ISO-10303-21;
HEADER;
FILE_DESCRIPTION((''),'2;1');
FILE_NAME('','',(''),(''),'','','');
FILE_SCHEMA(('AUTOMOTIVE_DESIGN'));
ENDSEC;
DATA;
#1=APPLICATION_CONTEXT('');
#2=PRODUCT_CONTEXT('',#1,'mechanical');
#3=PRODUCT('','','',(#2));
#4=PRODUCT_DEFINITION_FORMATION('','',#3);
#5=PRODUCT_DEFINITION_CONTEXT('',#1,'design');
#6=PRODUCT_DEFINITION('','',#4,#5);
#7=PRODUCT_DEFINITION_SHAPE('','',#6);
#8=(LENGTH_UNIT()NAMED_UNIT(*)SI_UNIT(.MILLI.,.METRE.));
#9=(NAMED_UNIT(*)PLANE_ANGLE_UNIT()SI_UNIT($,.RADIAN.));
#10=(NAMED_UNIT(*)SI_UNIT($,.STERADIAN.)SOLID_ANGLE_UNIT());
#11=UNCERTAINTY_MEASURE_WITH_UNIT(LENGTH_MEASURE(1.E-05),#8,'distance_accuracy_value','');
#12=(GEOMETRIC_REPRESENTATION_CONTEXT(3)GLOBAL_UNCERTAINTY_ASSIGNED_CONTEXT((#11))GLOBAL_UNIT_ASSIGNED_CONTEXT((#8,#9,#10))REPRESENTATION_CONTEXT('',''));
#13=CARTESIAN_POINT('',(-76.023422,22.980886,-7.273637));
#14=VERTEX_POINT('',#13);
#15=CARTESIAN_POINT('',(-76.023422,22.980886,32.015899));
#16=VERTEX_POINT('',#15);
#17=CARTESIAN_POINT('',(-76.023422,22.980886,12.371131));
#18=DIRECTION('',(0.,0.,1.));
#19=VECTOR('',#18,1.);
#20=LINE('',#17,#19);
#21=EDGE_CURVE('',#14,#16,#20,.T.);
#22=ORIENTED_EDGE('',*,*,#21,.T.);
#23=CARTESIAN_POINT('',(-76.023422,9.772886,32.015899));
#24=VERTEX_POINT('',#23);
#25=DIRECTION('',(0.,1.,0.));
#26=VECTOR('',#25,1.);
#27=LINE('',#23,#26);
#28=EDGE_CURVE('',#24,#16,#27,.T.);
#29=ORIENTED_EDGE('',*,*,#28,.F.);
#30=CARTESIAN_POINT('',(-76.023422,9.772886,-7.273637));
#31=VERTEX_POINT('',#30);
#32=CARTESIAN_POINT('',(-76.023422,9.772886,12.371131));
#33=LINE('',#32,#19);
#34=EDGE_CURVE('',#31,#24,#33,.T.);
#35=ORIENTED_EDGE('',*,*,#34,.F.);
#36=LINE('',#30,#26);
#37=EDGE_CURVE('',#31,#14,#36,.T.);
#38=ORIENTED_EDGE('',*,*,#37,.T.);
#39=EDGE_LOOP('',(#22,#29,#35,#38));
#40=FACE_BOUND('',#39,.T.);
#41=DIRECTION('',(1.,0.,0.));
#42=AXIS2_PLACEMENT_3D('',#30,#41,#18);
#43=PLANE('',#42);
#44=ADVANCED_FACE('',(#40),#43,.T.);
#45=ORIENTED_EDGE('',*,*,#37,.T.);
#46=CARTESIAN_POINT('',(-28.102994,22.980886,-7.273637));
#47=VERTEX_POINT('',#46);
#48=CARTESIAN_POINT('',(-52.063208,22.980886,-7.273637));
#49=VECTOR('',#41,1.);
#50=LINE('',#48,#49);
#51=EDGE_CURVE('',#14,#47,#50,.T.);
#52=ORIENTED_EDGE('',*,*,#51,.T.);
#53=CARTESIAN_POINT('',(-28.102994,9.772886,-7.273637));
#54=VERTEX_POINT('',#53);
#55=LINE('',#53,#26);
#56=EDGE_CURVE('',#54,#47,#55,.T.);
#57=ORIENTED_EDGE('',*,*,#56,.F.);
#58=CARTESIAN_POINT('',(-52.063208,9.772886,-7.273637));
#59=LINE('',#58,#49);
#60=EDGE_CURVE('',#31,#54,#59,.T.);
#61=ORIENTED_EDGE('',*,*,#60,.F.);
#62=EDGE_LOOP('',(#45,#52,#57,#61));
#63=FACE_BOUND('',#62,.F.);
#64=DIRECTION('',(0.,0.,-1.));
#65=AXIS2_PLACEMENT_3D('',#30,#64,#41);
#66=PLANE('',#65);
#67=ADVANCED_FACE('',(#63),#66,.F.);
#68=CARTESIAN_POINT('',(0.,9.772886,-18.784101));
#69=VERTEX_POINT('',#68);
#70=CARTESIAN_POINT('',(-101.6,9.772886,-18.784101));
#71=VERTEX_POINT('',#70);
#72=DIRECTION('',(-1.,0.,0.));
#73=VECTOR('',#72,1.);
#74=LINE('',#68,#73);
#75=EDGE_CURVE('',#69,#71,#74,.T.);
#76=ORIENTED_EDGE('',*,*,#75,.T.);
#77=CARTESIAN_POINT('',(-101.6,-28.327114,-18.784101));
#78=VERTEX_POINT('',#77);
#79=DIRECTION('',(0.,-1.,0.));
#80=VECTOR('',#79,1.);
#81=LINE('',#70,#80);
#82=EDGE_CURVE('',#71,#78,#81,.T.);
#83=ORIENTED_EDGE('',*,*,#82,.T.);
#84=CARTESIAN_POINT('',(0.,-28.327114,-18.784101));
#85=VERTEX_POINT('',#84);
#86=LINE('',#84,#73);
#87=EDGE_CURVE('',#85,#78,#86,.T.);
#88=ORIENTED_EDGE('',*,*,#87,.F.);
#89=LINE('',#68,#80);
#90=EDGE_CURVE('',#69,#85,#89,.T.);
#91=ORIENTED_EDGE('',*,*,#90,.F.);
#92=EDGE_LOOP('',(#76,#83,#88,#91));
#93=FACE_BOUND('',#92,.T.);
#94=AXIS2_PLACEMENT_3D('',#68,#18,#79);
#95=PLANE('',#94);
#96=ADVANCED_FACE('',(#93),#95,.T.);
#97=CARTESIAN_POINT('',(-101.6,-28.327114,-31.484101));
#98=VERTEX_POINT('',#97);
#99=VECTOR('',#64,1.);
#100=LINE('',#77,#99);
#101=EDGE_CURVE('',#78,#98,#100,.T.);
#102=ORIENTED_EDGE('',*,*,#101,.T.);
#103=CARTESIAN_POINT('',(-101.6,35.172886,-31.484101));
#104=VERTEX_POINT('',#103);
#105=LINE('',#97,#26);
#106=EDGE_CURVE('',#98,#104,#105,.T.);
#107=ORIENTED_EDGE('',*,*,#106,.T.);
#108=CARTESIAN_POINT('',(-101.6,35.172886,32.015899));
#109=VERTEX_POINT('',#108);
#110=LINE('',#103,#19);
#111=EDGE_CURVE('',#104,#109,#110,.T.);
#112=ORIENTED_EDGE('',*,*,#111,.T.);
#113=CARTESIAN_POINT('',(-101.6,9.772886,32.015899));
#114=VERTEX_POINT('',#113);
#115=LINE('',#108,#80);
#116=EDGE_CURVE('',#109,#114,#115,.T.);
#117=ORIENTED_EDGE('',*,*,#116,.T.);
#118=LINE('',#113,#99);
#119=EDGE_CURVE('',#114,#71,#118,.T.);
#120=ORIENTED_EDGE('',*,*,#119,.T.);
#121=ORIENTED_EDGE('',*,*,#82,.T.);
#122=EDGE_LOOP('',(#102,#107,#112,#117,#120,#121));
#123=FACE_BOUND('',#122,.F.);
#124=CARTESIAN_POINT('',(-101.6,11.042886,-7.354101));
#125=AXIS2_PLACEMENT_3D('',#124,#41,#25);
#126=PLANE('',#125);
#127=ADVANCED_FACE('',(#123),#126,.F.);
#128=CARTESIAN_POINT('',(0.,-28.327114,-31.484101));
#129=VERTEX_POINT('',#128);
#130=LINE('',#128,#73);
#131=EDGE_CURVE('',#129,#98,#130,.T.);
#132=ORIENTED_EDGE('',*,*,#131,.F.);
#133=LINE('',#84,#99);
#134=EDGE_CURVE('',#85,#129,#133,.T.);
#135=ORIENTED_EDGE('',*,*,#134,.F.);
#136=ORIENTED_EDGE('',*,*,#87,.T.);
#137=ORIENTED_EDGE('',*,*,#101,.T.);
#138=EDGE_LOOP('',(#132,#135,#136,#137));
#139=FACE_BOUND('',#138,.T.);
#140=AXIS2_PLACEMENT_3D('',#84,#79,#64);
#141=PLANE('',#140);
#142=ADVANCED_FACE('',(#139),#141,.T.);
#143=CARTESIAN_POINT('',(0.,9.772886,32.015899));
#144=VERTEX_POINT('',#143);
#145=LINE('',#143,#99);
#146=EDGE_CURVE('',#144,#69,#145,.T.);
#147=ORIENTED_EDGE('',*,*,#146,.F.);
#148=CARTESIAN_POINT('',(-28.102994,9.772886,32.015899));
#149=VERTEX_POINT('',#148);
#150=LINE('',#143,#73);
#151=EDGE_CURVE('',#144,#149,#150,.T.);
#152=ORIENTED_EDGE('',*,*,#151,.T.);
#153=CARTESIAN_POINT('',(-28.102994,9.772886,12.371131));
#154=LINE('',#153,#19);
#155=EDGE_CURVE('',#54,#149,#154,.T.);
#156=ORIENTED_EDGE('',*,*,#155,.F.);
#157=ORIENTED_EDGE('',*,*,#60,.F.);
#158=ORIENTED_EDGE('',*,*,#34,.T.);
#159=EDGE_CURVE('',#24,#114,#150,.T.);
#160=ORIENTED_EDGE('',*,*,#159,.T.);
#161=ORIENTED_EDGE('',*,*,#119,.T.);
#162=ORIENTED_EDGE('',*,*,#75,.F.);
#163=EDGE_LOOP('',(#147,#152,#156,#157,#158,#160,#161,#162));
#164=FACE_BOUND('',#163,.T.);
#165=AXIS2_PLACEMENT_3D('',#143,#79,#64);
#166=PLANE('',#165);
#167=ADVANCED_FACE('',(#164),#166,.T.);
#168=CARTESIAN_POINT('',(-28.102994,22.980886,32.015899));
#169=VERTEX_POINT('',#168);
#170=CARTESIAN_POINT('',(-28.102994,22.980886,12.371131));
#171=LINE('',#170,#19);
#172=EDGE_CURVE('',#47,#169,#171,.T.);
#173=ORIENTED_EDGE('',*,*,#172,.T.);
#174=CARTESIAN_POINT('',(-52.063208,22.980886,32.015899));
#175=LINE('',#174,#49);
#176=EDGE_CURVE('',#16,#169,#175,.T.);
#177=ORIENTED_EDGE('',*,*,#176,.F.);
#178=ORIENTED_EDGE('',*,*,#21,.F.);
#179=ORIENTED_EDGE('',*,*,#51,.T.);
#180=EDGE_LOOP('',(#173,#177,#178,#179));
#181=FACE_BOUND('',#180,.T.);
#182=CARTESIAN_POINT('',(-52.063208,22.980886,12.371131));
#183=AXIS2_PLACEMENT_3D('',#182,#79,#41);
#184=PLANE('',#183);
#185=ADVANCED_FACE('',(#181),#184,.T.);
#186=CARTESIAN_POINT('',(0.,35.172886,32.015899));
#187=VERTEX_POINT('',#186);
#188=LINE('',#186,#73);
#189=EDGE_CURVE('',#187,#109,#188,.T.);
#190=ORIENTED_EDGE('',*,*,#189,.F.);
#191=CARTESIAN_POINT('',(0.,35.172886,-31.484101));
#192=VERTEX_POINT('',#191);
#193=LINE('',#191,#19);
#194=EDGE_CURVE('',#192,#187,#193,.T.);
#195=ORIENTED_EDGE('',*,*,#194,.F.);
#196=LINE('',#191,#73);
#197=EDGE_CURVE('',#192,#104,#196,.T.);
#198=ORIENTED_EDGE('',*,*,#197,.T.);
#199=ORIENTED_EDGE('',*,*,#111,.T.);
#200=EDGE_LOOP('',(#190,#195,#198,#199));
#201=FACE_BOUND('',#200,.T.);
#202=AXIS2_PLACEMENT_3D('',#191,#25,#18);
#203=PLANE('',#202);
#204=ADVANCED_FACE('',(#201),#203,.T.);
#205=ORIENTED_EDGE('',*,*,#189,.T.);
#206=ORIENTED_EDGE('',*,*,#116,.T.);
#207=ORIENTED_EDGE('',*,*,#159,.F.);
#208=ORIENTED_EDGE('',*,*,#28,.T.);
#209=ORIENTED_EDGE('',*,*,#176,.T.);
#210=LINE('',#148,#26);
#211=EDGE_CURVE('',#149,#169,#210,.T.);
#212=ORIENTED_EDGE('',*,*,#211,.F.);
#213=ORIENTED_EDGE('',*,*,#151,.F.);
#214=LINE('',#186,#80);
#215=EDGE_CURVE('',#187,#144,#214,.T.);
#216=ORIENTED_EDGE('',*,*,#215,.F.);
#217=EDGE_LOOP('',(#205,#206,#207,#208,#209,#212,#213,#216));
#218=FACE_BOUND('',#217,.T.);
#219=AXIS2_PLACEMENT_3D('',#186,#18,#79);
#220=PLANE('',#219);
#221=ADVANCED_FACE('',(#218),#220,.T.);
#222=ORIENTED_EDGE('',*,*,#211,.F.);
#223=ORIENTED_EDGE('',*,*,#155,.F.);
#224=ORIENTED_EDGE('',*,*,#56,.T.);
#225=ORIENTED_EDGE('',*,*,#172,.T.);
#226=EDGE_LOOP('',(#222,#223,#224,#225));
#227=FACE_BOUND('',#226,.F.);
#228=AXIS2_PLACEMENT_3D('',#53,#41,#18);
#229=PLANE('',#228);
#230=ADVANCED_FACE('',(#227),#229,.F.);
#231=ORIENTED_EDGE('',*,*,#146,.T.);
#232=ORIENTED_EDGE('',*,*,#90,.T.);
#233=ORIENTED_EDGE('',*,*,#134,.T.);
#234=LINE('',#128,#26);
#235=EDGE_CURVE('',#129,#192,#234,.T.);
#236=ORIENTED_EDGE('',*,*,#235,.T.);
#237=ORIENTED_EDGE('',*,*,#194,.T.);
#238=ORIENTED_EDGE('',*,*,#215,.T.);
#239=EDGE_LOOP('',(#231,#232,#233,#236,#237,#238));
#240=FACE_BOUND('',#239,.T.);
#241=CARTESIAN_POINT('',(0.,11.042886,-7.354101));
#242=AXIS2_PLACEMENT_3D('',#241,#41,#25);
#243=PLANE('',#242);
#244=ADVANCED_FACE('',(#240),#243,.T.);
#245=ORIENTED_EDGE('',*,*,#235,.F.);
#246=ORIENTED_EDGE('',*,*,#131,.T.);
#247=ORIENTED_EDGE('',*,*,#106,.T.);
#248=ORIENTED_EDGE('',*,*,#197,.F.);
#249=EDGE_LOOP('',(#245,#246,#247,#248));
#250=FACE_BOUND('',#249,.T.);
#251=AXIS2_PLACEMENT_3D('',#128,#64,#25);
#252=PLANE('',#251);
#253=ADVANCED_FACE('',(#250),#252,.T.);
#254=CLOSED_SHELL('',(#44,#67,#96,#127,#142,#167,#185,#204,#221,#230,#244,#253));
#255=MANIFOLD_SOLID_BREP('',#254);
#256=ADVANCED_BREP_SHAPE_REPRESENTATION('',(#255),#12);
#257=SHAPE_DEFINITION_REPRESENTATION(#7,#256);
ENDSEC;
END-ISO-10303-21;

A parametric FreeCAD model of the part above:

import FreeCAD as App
import Part
import Sketcher
Q = App.Units.Quantity

doc = App.newDocument("Part")
body = doc.addObject("PartDesign::Body", "Body")

# Sketch on YZ plane
sketch1 = body.newObject("Sketcher::SketchObject", "Sketch")
sketch1.AttachmentSupport = (doc.getObject("YZ_Plane"), [""])
sketch1.MapMode = "FlatFace"
sketch1.addGeometry(Part.LineSegment(App.Vector(9.772886, -18.784101, 0), App.Vector(-28.327114, -18.784101, 0)), False)
sketch1.addGeometry(Part.LineSegment(App.Vector(-28.327114, -18.784101, 0), App.Vector(-28.327114, -31.484101, 0)), False)
sketch1.addGeometry(Part.LineSegment(App.Vector(-28.327114, -31.484101, 0), App.Vector(35.172886, -31.484101, 0)), False)
sketch1.addGeometry(Part.LineSegment(App.Vector(35.172886, -31.484101, 0), App.Vector(35.172886, 32.015899, 0)), False)
sketch1.addGeometry(Part.LineSegment(App.Vector(35.172886, 32.015899, 0), App.Vector(9.772886, 32.015899, 0)), False)
sketch1.addGeometry(Part.LineSegment(App.Vector(9.772886, 32.015899, 0), App.Vector(9.772886, -18.784101, 0)), False)
sketch1.addConstraint(Sketcher.Constraint("Coincident", 0, 2, 1, 1))
sketch1.addConstraint(Sketcher.Constraint("Coincident", 1, 2, 2, 1))
sketch1.addConstraint(Sketcher.Constraint("Coincident", 2, 2, 3, 1))
sketch1.addConstraint(Sketcher.Constraint("Coincident", 3, 2, 4, 1))
sketch1.addConstraint(Sketcher.Constraint("Coincident", 4, 2, 5, 1))
sketch1.addConstraint(Sketcher.Constraint("Coincident", 5, 2, 0, 1))
sketch1.addConstraint(Sketcher.Constraint("Horizontal", 0))
sketch1.addConstraint(Sketcher.Constraint("Vertical", 1))
sketch1.addConstraint(Sketcher.Constraint("Horizontal", 2))
sketch1.addConstraint(Sketcher.Constraint("Vertical", 3))
sketch1.addConstraint(Sketcher.Constraint("Horizontal", 4))
sketch1.addConstraint(Sketcher.Constraint("Vertical", 5))
sketch1.addConstraint(Sketcher.Constraint("Equal", 2, 3))
sketch1.addConstraint(Sketcher.Constraint("DistanceX", 4, 2, 4, 1, Q("1 in")))
sketch1.addConstraint(Sketcher.Constraint("DistanceY", 5, 2, 5, 1, Q("2 in")))
sketch1.addConstraint(Sketcher.Constraint("DistanceX", 0, 2, 0, 1, Q("1.5 in")))
sketch1.addConstraint(Sketcher.Constraint("DistanceY", 0, 2, -1, 1, 18.784101))
sketch1.addConstraint(Sketcher.Constraint("DistanceX", 0, 2, -1, 1, 28.327114))
pad1 = body.newObject("PartDesign::Pad", "Pad")
pad1.Profile = sketch1
pad1.Length = Q("4 in")
pad1.Reversed = True

# Sketch on XZ plane
sketch2 = body.newObject("Sketcher::SketchObject", "Sketch001")
sketch2.AttachmentSupport = (doc.getObject("XZ_Plane"), [""])
sketch2.MapMode = "FlatFace"
sketch2.AttachmentOffset = App.Placement(App.Vector(0, 0, -9.772886), App.Rotation())
sketch2.addGeometry(Part.LineSegment(App.Vector(-76.023422, 32.015899, 0), App.Vector(-76.023422, -7.273637, 0)), False)
sketch2.addGeometry(Part.LineSegment(App.Vector(-76.023422, -7.273637, 0), App.Vector(-28.102994, -7.273637, 0)), False)
sketch2.addGeometry(Part.LineSegment(App.Vector(-28.102994, -7.273637, 0), App.Vector(-28.102994, 32.015899, 0)), False)
sketch2.addGeometry(Part.LineSegment(App.Vector(-28.102994, 32.015899, 0), App.Vector(-76.023422, 32.015899, 0)), False)
sketch2.addConstraint(Sketcher.Constraint("Coincident", 0, 2, 1, 1))
sketch2.addConstraint(Sketcher.Constraint("Coincident", 1, 2, 2, 1))
sketch2.addConstraint(Sketcher.Constraint("Coincident", 2, 2, 3, 1))
sketch2.addConstraint(Sketcher.Constraint("Coincident", 3, 2, 0, 1))
sketch2.addConstraint(Sketcher.Constraint("Vertical", 0))
sketch2.addConstraint(Sketcher.Constraint("Horizontal", 1))
sketch2.addConstraint(Sketcher.Constraint("Vertical", 2))
sketch2.addConstraint(Sketcher.Constraint("Horizontal", 3))
sketch2.addConstraint(Sketcher.Constraint("DistanceY", -1, 1, 2, 2, 32.015899))
sketch2.addConstraint(Sketcher.Constraint("DistanceX", 1, 1, 1, 2, 47.920428))
sketch2.addConstraint(Sketcher.Constraint("DistanceY", 0, 2, 0, 1, 39.289536))
sketch2.addConstraint(Sketcher.Constraint("DistanceX", 0, 2, -1, 1, 76.023422))
pocket1 = body.newObject("PartDesign::Pocket", "Pocket")
pocket1.Profile = sketch2
pocket1.Length = Q("0.52 in")

doc.recompute()
